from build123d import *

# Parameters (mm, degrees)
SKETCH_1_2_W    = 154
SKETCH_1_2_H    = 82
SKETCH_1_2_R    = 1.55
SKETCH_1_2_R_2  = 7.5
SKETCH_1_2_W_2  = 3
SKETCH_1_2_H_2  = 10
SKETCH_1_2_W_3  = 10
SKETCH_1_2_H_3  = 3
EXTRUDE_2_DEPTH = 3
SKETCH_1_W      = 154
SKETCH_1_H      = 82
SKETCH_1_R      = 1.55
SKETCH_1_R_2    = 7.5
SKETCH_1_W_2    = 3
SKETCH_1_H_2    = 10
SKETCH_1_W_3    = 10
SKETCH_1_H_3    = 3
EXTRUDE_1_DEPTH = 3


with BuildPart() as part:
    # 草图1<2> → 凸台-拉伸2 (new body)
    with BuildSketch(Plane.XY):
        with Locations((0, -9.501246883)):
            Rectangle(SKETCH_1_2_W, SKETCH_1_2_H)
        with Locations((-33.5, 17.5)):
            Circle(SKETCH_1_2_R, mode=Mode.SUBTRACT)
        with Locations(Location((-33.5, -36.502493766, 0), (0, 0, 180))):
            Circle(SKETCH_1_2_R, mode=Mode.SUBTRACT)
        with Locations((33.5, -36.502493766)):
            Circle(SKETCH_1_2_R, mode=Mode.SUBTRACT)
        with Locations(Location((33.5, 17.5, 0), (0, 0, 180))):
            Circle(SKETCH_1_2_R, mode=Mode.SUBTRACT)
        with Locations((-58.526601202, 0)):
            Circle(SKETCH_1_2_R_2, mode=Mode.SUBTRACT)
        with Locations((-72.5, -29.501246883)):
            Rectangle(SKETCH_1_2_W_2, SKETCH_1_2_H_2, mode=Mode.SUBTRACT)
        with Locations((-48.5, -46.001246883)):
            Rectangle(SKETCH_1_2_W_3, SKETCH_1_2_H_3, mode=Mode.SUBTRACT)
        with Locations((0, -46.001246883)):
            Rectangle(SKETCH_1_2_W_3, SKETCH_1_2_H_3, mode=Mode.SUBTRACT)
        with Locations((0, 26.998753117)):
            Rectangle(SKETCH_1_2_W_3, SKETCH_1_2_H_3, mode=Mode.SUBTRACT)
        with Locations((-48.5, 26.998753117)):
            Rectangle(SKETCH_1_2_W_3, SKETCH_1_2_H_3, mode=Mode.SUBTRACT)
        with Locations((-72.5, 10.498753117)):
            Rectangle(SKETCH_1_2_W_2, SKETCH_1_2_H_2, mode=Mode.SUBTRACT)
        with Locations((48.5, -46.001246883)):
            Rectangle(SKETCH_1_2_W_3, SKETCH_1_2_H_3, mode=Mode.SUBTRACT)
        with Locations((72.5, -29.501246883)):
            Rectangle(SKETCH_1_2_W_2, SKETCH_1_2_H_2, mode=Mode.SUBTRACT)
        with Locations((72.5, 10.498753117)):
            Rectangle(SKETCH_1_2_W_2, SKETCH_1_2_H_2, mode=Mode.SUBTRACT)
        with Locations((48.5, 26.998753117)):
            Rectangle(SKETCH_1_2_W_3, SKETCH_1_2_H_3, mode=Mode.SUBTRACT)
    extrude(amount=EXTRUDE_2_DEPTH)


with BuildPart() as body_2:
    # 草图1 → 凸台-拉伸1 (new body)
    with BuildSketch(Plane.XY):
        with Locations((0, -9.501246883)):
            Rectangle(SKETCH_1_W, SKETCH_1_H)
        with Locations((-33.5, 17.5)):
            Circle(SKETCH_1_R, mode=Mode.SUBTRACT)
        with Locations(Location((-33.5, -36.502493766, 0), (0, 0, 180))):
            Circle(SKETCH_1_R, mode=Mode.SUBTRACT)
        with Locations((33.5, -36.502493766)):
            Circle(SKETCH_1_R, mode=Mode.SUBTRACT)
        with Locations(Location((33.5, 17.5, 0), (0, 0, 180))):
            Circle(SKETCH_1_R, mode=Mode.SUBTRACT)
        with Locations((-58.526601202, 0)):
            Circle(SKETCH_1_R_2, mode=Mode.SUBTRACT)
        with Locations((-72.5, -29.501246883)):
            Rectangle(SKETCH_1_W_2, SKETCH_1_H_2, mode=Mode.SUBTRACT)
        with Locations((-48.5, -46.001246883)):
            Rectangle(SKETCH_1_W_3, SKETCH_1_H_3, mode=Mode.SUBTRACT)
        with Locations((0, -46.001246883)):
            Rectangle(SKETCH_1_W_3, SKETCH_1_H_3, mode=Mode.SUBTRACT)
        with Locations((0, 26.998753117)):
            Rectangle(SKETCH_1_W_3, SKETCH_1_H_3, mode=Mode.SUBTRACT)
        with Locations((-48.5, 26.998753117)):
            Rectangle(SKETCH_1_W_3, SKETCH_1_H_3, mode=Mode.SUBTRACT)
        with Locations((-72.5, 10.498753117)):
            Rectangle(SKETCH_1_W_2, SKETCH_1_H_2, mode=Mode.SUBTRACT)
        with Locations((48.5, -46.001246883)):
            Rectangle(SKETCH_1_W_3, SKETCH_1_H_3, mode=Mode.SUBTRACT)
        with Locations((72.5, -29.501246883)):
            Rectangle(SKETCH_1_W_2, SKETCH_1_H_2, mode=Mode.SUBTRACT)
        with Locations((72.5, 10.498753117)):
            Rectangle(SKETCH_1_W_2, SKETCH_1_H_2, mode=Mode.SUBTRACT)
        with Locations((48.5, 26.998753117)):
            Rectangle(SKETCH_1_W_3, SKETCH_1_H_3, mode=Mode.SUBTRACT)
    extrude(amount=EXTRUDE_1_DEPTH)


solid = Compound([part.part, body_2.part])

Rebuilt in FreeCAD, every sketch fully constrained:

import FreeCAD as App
import Part
import Sketcher
from FreeCAD import Vector
Q = App.Units.Quantity

doc = App.newDocument("Part")
body = doc.addObject("PartDesign::Body", "Body")

sketch1 = body.newObject("Sketcher::SketchObject", "Sketch")
sketch1.AttachmentSupport = (doc.getObject("XY_Plane"), [""])
sketch1.MapMode = "FlatFace"
sketch1.addGeometry([
    Part.LineSegment(Vector(-77, 31.498753, 0), Vector(-77, -50.501247, 0)),
    Part.LineSegment(Vector(-77, -50.501247, 0), Vector(77, -50.501247, 0)),
    Part.LineSegment(Vector(77, -50.501247, 0), Vector(77, 31.498753, 0)),
    Part.LineSegment(Vector(77, 31.498753, 0), Vector(-77, 31.498753, 0)),
    Part.LineSegment(Vector(-43.5, -47.501247, 0), Vector(-53.5, -47.501247, 0)),
    Part.LineSegment(Vector(-53.5, -47.501247, 0), Vector(-53.5, -44.501247, 0)),
    Part.LineSegment(Vector(-53.5, -44.501247, 0), Vector(-43.5, -44.501247, 0)),
    Part.LineSegment(Vector(-43.5, -44.501247, 0), Vector(-43.5, -47.501247, 0)),
    Part.LineSegment(Vector(-71, -34.501247, 0), Vector(-74, -34.501247, 0)),
    Part.LineSegment(Vector(-74, -34.501247, 0), Vector(-74, -24.501247, 0)),
    Part.LineSegment(Vector(-74, -24.501247, 0), Vector(-71, -24.501247, 0)),
    Part.LineSegment(Vector(-71, -24.501247, 0), Vector(-71, -34.501247, 0)),
    Part.Circle(Vector(-33.5, -36.502494, 0), Vector(0, 0, 1), 1.55),
    Part.LineSegment(Vector(5, -47.501247, 0), Vector(-5, -47.501247, 0)),
    Part.LineSegment(Vector(-5, -47.501247, 0), Vector(-5, -44.501247, 0)),
    Part.LineSegment(Vector(-5, -44.501247, 0), Vector(5, -44.501247, 0)),
    Part.LineSegment(Vector(5, -44.501247, 0), Vector(5, -47.501247, 0)),
    Part.Circle(Vector(33.5, -36.502494, 0), Vector(0, 0, 1), 1.55),
    Part.LineSegment(Vector(53.5, -47.501247, 0), Vector(43.5, -47.501247, 0)),
    Part.LineSegment(Vector(43.5, -47.501247, 0), Vector(43.5, -44.501247, 0)),
    Part.LineSegment(Vector(43.5, -44.501247, 0), Vector(53.5, -44.501247, 0)),
    Part.LineSegment(Vector(53.5, -44.501247, 0), Vector(53.5, -47.501247, 0)),
    Part.LineSegment(Vector(74, -34.501247, 0), Vector(71, -34.501247, 0)),
    Part.LineSegment(Vector(71, -34.501247, 0), Vector(71, -24.501247, 0)),
    Part.LineSegment(Vector(71, -24.501247, 0), Vector(74, -24.501247, 0)),
    Part.LineSegment(Vector(74, -24.501247, 0), Vector(74, -34.501247, 0)),
    Part.Circle(Vector(-58.526601, 0, 0), Vector(0, 0, 1), 7.5),
    Part.LineSegment(Vector(-71, 5.498753, 0), Vector(-74, 5.498753, 0)),
    Part.LineSegment(Vector(-74, 5.498753, 0), Vector(-74, 15.498753, 0)),
    Part.LineSegment(Vector(-74, 15.498753, 0), Vector(-71, 15.498753, 0)),
    Part.LineSegment(Vector(-71, 15.498753, 0), Vector(-71, 5.498753, 0)),
    Part.LineSegment(Vector(-43.5, 25.498753, 0), Vector(-53.5, 25.498753, 0)),
    Part.LineSegment(Vector(-53.5, 25.498753, 0), Vector(-53.5, 28.498753, 0)),
    Part.LineSegment(Vector(-53.5, 28.498753, 0), Vector(-43.5, 28.498753, 0)),
    Part.LineSegment(Vector(-43.5, 28.498753, 0), Vector(-43.5, 25.498753, 0)),
    Part.Circle(Vector(-33.5, 17.5, 0), Vector(0, 0, 1), 1.55),
    Part.Circle(Vector(33.5, 17.5, 0), Vector(0, 0, 1), 1.55),
    Part.LineSegment(Vector(5, 25.498753, 0), Vector(-5, 25.498753, 0)),
    Part.LineSegment(Vector(-5, 25.498753, 0), Vector(-5, 28.498753, 0)),
    Part.LineSegment(Vector(-5, 28.498753, 0), Vector(5, 28.498753, 0)),
    Part.LineSegment(Vector(5, 28.498753, 0), Vector(5, 25.498753, 0)),
    Part.LineSegment(Vector(74, 5.498753, 0), Vector(71, 5.498753, 0)),
    Part.LineSegment(Vector(71, 5.498753, 0), Vector(71, 15.498753, 0)),
    Part.LineSegment(Vector(71, 15.498753, 0), Vector(74, 15.498753, 0)),
    Part.LineSegment(Vector(74, 15.498753, 0), Vector(74, 5.498753, 0)),
    Part.LineSegment(Vector(53.5, 25.498753, 0), Vector(43.5, 25.498753, 0)),
    Part.LineSegment(Vector(43.5, 25.498753, 0), Vector(43.5, 28.498753, 0)),
    Part.LineSegment(Vector(43.5, 28.498753, 0), Vector(53.5, 28.498753, 0)),
    Part.LineSegment(Vector(53.5, 28.498753, 0), Vector(53.5, 25.498753, 0)),
], False)
sketch1.addConstraint([
    Sketcher.Constraint("Coincident", 0, 2, 1, 1),
    Sketcher.Constraint("Coincident", 1, 2, 2, 1),
    Sketcher.Constraint("Coincident", 2, 2, 3, 1),
    Sketcher.Constraint("Coincident", 3, 2, 0, 1),
    Sketcher.Constraint("Coincident", 4, 2, 5, 1),
    Sketcher.Constraint("Coincident", 5, 2, 6, 1),
    Sketcher.Constraint("Coincident", 6, 2, 7, 1),
    Sketcher.Constraint("Coincident", 7, 2, 4, 1),
    Sketcher.Constraint("Coincident", 8, 2, 9, 1),
    Sketcher.Constraint("Coincident", 9, 2, 10, 1),
    Sketcher.Constraint("Coincident", 10, 2, 11, 1),
    Sketcher.Constraint("Coincident", 11, 2, 8, 1),
    Sketcher.Constraint("Coincident", 13, 2, 14, 1),
    Sketcher.Constraint("Coincident", 14, 2, 15, 1),
    Sketcher.Constraint("Coincident", 15, 2, 16, 1),
    Sketcher.Constraint("Coincident", 16, 2, 13, 1),
    Sketcher.Constraint("Coincident", 18, 2, 19, 1),
    Sketcher.Constraint("Coincident", 19, 2, 20, 1),
    Sketcher.Constraint("Coincident", 20, 2, 21, 1),
    Sketcher.Constraint("Coincident", 21, 2, 18, 1),
    Sketcher.Constraint("Coincident", 22, 2, 23, 1),
    Sketcher.Constraint("Coincident", 23, 2, 24, 1),
    Sketcher.Constraint("Coincident", 24, 2, 25, 1),
    Sketcher.Constraint("Coincident", 25, 2, 22, 1),
    Sketcher.Constraint("Coincident", 27, 2, 28, 1),
    Sketcher.Constraint("Coincident", 28, 2, 29, 1),
    Sketcher.Constraint("Coincident", 29, 2, 30, 1),
    Sketcher.Constraint("Coincident", 30, 2, 27, 1),
    Sketcher.Constraint("Coincident", 31, 2, 32, 1),
    Sketcher.Constraint("Coincident", 32, 2, 33, 1),
    Sketcher.Constraint("Coincident", 33, 2, 34, 1),
    Sketcher.Constraint("Coincident", 34, 2, 31, 1),
    Sketcher.Constraint("Coincident", 37, 2, 38, 1),
    Sketcher.Constraint("Coincident", 38, 2, 39, 1),
    Sketcher.Constraint("Coincident", 39, 2, 40, 1),
    Sketcher.Constraint("Coincident", 40, 2, 37, 1),
    Sketcher.Constraint("Coincident", 41, 2, 42, 1),
    Sketcher.Constraint("Coincident", 42, 2, 43, 1),
    Sketcher.Constraint("Coincident", 43, 2, 44, 1),
    Sketcher.Constraint("Coincident", 44, 2, 41, 1),
    Sketcher.Constraint("Coincident", 45, 2, 46, 1),
    Sketcher.Constraint("Coincident", 46, 2, 47, 1),
    Sketcher.Constraint("Coincident", 47, 2, 48, 1),
    Sketcher.Constraint("Coincident", 48, 2, 45, 1),
    Sketcher.Constraint("Vertical", 0),
    Sketcher.Constraint("Horizontal", 1),
    Sketcher.Constraint("Vertical", 2),
    Sketcher.Constraint("Horizontal", 3),
    Sketcher.Constraint("Horizontal", 4),
    Sketcher.Constraint("Vertical", 5),
    Sketcher.Constraint("Horizontal", 6),
    Sketcher.Constraint("Vertical", 7),
    Sketcher.Constraint("Horizontal", 8),
    Sketcher.Constraint("Vertical", 9),
    Sketcher.Constraint("Horizontal", 10),
    Sketcher.Constraint("Vertical", 11),
    Sketcher.Constraint("Horizontal", 13),
    Sketcher.Constraint("Vertical", 14),
    Sketcher.Constraint("Horizontal", 15),
    Sketcher.Constraint("Vertical", 16),
    Sketcher.Constraint("Horizontal", 18),
    Sketcher.Constraint("Vertical", 19),
    Sketcher.Constraint("Horizontal", 20),
    Sketcher.Constraint("Vertical", 21),
    Sketcher.Constraint("Horizontal", 22),
    Sketcher.Constraint("Vertical", 23),
    Sketcher.Constraint("Horizontal", 24),
    Sketcher.Constraint("Vertical", 25),
    Sketcher.Constraint("Horizontal", 27),
    Sketcher.Constraint("Vertical", 28),
    Sketcher.Constraint("Horizontal", 29),
    Sketcher.Constraint("Vertical", 30),
    Sketcher.Constraint("Horizontal", 31),
    Sketcher.Constraint("Vertical", 32),
    Sketcher.Constraint("Horizontal", 33),
    Sketcher.Constraint("Vertical", 34),
    Sketcher.Constraint("Horizontal", 37),
    Sketcher.Constraint("Vertical", 38),
    Sketcher.Constraint("Horizontal", 39),
    Sketcher.Constraint("Vertical", 40),
    Sketcher.Constraint("Horizontal", 41),
    Sketcher.Constraint("Vertical", 42),
    Sketcher.Constraint("Horizontal", 43),
    Sketcher.Constraint("Vertical", 44),
    Sketcher.Constraint("Horizontal", 45),
    Sketcher.Constraint("Vertical", 46),
    Sketcher.Constraint("Horizontal", 47),
    Sketcher.Constraint("Vertical", 48),
    Sketcher.Constraint("Equal", 12, 17),
    Sketcher.Constraint("Equal", 17, 35),
    Sketcher.Constraint("Equal", 35, 36),
    Sketcher.Constraint("Symmetric", 12, 3, 17, 3, -2),
    Sketcher.Constraint("Symmetric", 35, 3, 36, 3, -2),
    Sketcher.Constraint("Symmetric", 7, 2, 18, 2, -2),
    Sketcher.Constraint("Symmetric", 5, 2, 20, 2, -2),
    Sketcher.Constraint("Symmetric", 11, 2, 22, 2, -2),
    Sketcher.Constraint("Symmetric", 9, 2, 24, 2, -2),
    Sketcher.Constraint("Symmetric", 30, 2, 41, 2, -2),
    Sketcher.Constraint("Symmetric", 28, 2, 43, 2, -2),
    Sketcher.Constraint("Symmetric", 34, 2, 45, 2, -2),
    Sketcher.Constraint("Symmetric", 32, 2, 47, 2, -2),
    Sketcher.Constraint("PointOnObject", 26, 3, -1),
    Sketcher.Constraint("Horizontal", 7, 2, 13, 2),
    Sketcher.Constraint("Horizontal", 6, 2, 14, 2),
    Sketcher.Constraint("Horizontal", 34, 2, 37, 2),
    Sketcher.Constraint("Horizontal", 33, 2, 38, 2),
    Sketcher.Constraint("Vertical", 12, 3, 35, 3),
    Sketcher.Constraint("Vertical", 9, 2, 27, 2),
    Sketcher.Constraint("Vertical", 11, 2, 29, 2),
    Sketcher.Constraint("Vertical", 5, 2, 31, 2),
    Sketcher.Constraint("Vertical", 7, 2, 33, 2),
    Sketcher.Constraint("Vertical", 14, 2, 37, 2),
    Sketcher.Constraint("Vertical", 16, 2, 39, 2),
    Sketcher.Constraint("Equal", 6, 13),
    Sketcher.Constraint("Equal", 43, 5),
    Sketcher.Constraint("Equal", 47, 9),
    Sketcher.Constraint("Equal", 25, 28),
    Sketcher.Constraint("Equal", 21, 32),
    Sketcher.Constraint("Diameter", 26, Q("15 mm")),
    Sketcher.Constraint("Diameter", 12, Q("3.1 mm")),
    Sketcher.Constraint("DistanceX", 1, 1, 1, 2, Q("154 mm")),
    Sketcher.Constraint("DistanceX", 4, 2, 4, 1, Q("10 mm")),
    Sketcher.Constraint("DistanceX", 8, 2, 8, 1, Q("3 mm")),
    Sketcher.Constraint("DistanceY", 0, 2, 0, 1, Q("82 mm")),
    Sketcher.Constraint("DistanceX", 0, 2, -1, 1, Q("77 mm")),
    Sketcher.Constraint("DistanceX", 8, 2, -1, 1, Q("74 mm")),
    Sketcher.Constraint("DistanceX", 13, 2, -1, 1, Q("5 mm")),
    Sketcher.Constraint("DistanceX", 12, 3, 17, 3, Q("67 mm")),
    Sketcher.Constraint("DistanceX", 4, 2, 12, 3, Q("20 mm")),
    Sketcher.Constraint("DistanceY", 0, 2, 4, 2, Q("3 mm")),
    Sketcher.Constraint("DistanceY", 0, 2, 8, 2, Q("16 mm")),
    Sketcher.Constraint("DistanceY", 27, 2, 3, 2, Q("26 mm")),
    Sketcher.Constraint("DistanceY", 29, 2, 31, 2, Q("10 mm")),
    Sketcher.Constraint("DistanceY", -1, 1, 35, 3, Q("17.5 mm")),
    Sketcher.Constraint("DistanceX", 26, 3, -1, 1, Q("58.526601 mm")),
    Sketcher.Constraint("DistanceY", 12, 3, -1, 1, Q("36.502494 mm")),
    Sketcher.Constraint("DistanceY", 0, 2, -1, 1, Q("50.501247 mm")),
])
pad1 = body.newObject("PartDesign::Pad", "Pad")
pad1.Profile = sketch1
pad1.Length = 3
body2 = doc.addObject("PartDesign::Body", "Body001")

sketch2 = body2.newObject("Sketcher::SketchObject", "Sketch001")
sketch2.AttachmentSupport = (doc.getObject("XY_Plane001"), [""])
sketch2.MapMode = "FlatFace"
sketch2.addGeometry([
    Part.LineSegment(Vector(-77, 31.498753, 0), Vector(-77, -50.501247, 0)),
    Part.LineSegment(Vector(-77, -50.501247, 0), Vector(77, -50.501247, 0)),
    Part.LineSegment(Vector(77, -50.501247, 0), Vector(77, 31.498753, 0)),
    Part.LineSegment(Vector(77, 31.498753, 0), Vector(-77, 31.498753, 0)),
    Part.LineSegment(Vector(-43.5, -47.501247, 0), Vector(-53.5, -47.501247, 0)),
    Part.LineSegment(Vector(-53.5, -47.501247, 0), Vector(-53.5, -44.501247, 0)),
    Part.LineSegment(Vector(-53.5, -44.501247, 0), Vector(-43.5, -44.501247, 0)),
    Part.LineSegment(Vector(-43.5, -44.501247, 0), Vector(-43.5, -47.501247, 0)),
    Part.LineSegment(Vector(-71, -34.501247, 0), Vector(-74, -34.501247, 0)),
    Part.LineSegment(Vector(-74, -34.501247, 0), Vector(-74, -24.501247, 0)),
    Part.LineSegment(Vector(-74, -24.501247, 0), Vector(-71, -24.501247, 0)),
    Part.LineSegment(Vector(-71, -24.501247, 0), Vector(-71, -34.501247, 0)),
    Part.Circle(Vector(-33.5, -36.502494, 0), Vector(0, 0, 1), 1.55),
    Part.LineSegment(Vector(5, -47.501247, 0), Vector(-5, -47.501247, 0)),
    Part.LineSegment(Vector(-5, -47.501247, 0), Vector(-5, -44.501247, 0)),
    Part.LineSegment(Vector(-5, -44.501247, 0), Vector(5, -44.501247, 0)),
    Part.LineSegment(Vector(5, -44.501247, 0), Vector(5, -47.501247, 0)),
    Part.Circle(Vector(33.5, -36.502494, 0), Vector(0, 0, 1), 1.55),
    Part.LineSegment(Vector(53.5, -47.501247, 0), Vector(43.5, -47.501247, 0)),
    Part.LineSegment(Vector(43.5, -47.501247, 0), Vector(43.5, -44.501247, 0)),
    Part.LineSegment(Vector(43.5, -44.501247, 0), Vector(53.5, -44.501247, 0)),
    Part.LineSegment(Vector(53.5, -44.501247, 0), Vector(53.5, -47.501247, 0)),
    Part.LineSegment(Vector(74, -34.501247, 0), Vector(71, -34.501247, 0)),
    Part.LineSegment(Vector(71, -34.501247, 0), Vector(71, -24.501247, 0)),
    Part.LineSegment(Vector(71, -24.501247, 0), Vector(74, -24.501247, 0)),
    Part.LineSegment(Vector(74, -24.501247, 0), Vector(74, -34.501247, 0)),
    Part.Circle(Vector(-58.526601, 0, 0), Vector(0, 0, 1), 7.5),
    Part.LineSegment(Vector(-71, 5.498753, 0), Vector(-74, 5.498753, 0)),
    Part.LineSegment(Vector(-74, 5.498753, 0), Vector(-74, 15.498753, 0)),
    Part.LineSegment(Vector(-74, 15.498753, 0), Vector(-71, 15.498753, 0)),
    Part.LineSegment(Vector(-71, 15.498753, 0), Vector(-71, 5.498753, 0)),
    Part.LineSegment(Vector(-43.5, 25.498753, 0), Vector(-53.5, 25.498753, 0)),
    Part.LineSegment(Vector(-53.5, 25.498753, 0), Vector(-53.5, 28.498753, 0)),
    Part.LineSegment(Vector(-53.5, 28.498753, 0), Vector(-43.5, 28.498753, 0)),
    Part.LineSegment(Vector(-43.5, 28.498753, 0), Vector(-43.5, 25.498753, 0)),
    Part.Circle(Vector(-33.5, 17.5, 0), Vector(0, 0, 1), 1.55),
    Part.Circle(Vector(33.5, 17.5, 0), Vector(0, 0, 1), 1.55),
    Part.LineSegment(Vector(5, 25.498753, 0), Vector(-5, 25.498753, 0)),
    Part.LineSegment(Vector(-5, 25.498753, 0), Vector(-5, 28.498753, 0)),
    Part.LineSegment(Vector(-5, 28.498753, 0), Vector(5, 28.498753, 0)),
    Part.LineSegment(Vector(5, 28.498753, 0), Vector(5, 25.498753, 0)),
    Part.LineSegment(Vector(74, 5.498753, 0), Vector(71, 5.498753, 0)),
    Part.LineSegment(Vector(71, 5.498753, 0), Vector(71, 15.498753, 0)),
    Part.LineSegment(Vector(71, 15.498753, 0), Vector(74, 15.498753, 0)),
    Part.LineSegment(Vector(74, 15.498753, 0), Vector(74, 5.498753, 0)),
    Part.LineSegment(Vector(53.5, 25.498753, 0), Vector(43.5, 25.498753, 0)),
    Part.LineSegment(Vector(43.5, 25.498753, 0), Vector(43.5, 28.498753, 0)),
    Part.LineSegment(Vector(43.5, 28.498753, 0), Vector(53.5, 28.498753, 0)),
    Part.LineSegment(Vector(53.5, 28.498753, 0), Vector(53.5, 25.498753, 0)),
], False)
sketch2.addConstraint([
    Sketcher.Constraint("Coincident", 0, 2, 1, 1),
    Sketcher.Constraint("Coincident", 1, 2, 2, 1),
    Sketcher.Constraint("Coincident", 2, 2, 3, 1),
    Sketcher.Constraint("Coincident", 3, 2, 0, 1),
    Sketcher.Constraint("Coincident", 4, 2, 5, 1),
    Sketcher.Constraint("Coincident", 5, 2, 6, 1),
    Sketcher.Constraint("Coincident", 6, 2, 7, 1),
    Sketcher.Constraint("Coincident", 7, 2, 4, 1),
    Sketcher.Constraint("Coincident", 8, 2, 9, 1),
    Sketcher.Constraint("Coincident", 9, 2, 10, 1),
    Sketcher.Constraint("Coincident", 10, 2, 11, 1),
    Sketcher.Constraint("Coincident", 11, 2, 8, 1),
    Sketcher.Constraint("Coincident", 13, 2, 14, 1),
    Sketcher.Constraint("Coincident", 14, 2, 15, 1),
    Sketcher.Constraint("Coincident", 15, 2, 16, 1),
    Sketcher.Constraint("Coincident", 16, 2, 13, 1),
    Sketcher.Constraint("Coincident", 18, 2, 19, 1),
    Sketcher.Constraint("Coincident", 19, 2, 20, 1),
    Sketcher.Constraint("Coincident", 20, 2, 21, 1),
    Sketcher.Constraint("Coincident", 21, 2, 18, 1),
    Sketcher.Constraint("Coincident", 22, 2, 23, 1),
    Sketcher.Constraint("Coincident", 23, 2, 24, 1),
    Sketcher.Constraint("Coincident", 24, 2, 25, 1),
    Sketcher.Constraint("Coincident", 25, 2, 22, 1),
    Sketcher.Constraint("Coincident", 27, 2, 28, 1),
    Sketcher.Constraint("Coincident", 28, 2, 29, 1),
    Sketcher.Constraint("Coincident", 29, 2, 30, 1),
    Sketcher.Constraint("Coincident", 30, 2, 27, 1),
    Sketcher.Constraint("Coincident", 31, 2, 32, 1),
    Sketcher.Constraint("Coincident", 32, 2, 33, 1),
    Sketcher.Constraint("Coincident", 33, 2, 34, 1),
    Sketcher.Constraint("Coincident", 34, 2, 31, 1),
    Sketcher.Constraint("Coincident", 37, 2, 38, 1),
    Sketcher.Constraint("Coincident", 38, 2, 39, 1),
    Sketcher.Constraint("Coincident", 39, 2, 40, 1),
    Sketcher.Constraint("Coincident", 40, 2, 37, 1),
    Sketcher.Constraint("Coincident", 41, 2, 42, 1),
    Sketcher.Constraint("Coincident", 42, 2, 43, 1),
    Sketcher.Constraint("Coincident", 43, 2, 44, 1),
    Sketcher.Constraint("Coincident", 44, 2, 41, 1),
    Sketcher.Constraint("Coincident", 45, 2, 46, 1),
    Sketcher.Constraint("Coincident", 46, 2, 47, 1),
    Sketcher.Constraint("Coincident", 47, 2, 48, 1),
    Sketcher.Constraint("Coincident", 48, 2, 45, 1),
    Sketcher.Constraint("Vertical", 0),
    Sketcher.Constraint("Horizontal", 1),
    Sketcher.Constraint("Vertical", 2),
    Sketcher.Constraint("Horizontal", 3),
    Sketcher.Constraint("Horizontal", 4),
    Sketcher.Constraint("Vertical", 5),
    Sketcher.Constraint("Horizontal", 6),
    Sketcher.Constraint("Vertical", 7),
    Sketcher.Constraint("Horizontal", 8),
    Sketcher.Constraint("Vertical", 9),
    Sketcher.Constraint("Horizontal", 10),
    Sketcher.Constraint("Vertical", 11),
    Sketcher.Constraint("Horizontal", 13),
    Sketcher.Constraint("Vertical", 14),
    Sketcher.Constraint("Horizontal", 15),
    Sketcher.Constraint("Vertical", 16),
    Sketcher.Constraint("Horizontal", 18),
    Sketcher.Constraint("Vertical", 19),
    Sketcher.Constraint("Horizontal", 20),
    Sketcher.Constraint("Vertical", 21),
    Sketcher.Constraint("Horizontal", 22),
    Sketcher.Constraint("Vertical", 23),
    Sketcher.Constraint("Horizontal", 24),
    Sketcher.Constraint("Vertical", 25),
    Sketcher.Constraint("Horizontal", 27),
    Sketcher.Constraint("Vertical", 28),
    Sketcher.Constraint("Horizontal", 29),
    Sketcher.Constraint("Vertical", 30),
    Sketcher.Constraint("Horizontal", 31),
    Sketcher.Constraint("Vertical", 32),
    Sketcher.Constraint("Horizontal", 33),
    Sketcher.Constraint("Vertical", 34),
    Sketcher.Constraint("Horizontal", 37),
    Sketcher.Constraint("Vertical", 38),
    Sketcher.Constraint("Horizontal", 39),
    Sketcher.Constraint("Vertical", 40),
    Sketcher.Constraint("Horizontal", 41),
    Sketcher.Constraint("Vertical", 42),
    Sketcher.Constraint("Horizontal", 43),
    Sketcher.Constraint("Vertical", 44),
    Sketcher.Constraint("Horizontal", 45),
    Sketcher.Constraint("Vertical", 46),
    Sketcher.Constraint("Horizontal", 47),
    Sketcher.Constraint("Vertical", 48),
    Sketcher.Constraint("Equal", 12, 17),
    Sketcher.Constraint("Equal", 17, 35),
    Sketcher.Constraint("Equal", 35, 36),
    Sketcher.Constraint("Symmetric", 12, 3, 17, 3, -2),
    Sketcher.Constraint("Symmetric", 35, 3, 36, 3, -2),
    Sketcher.Constraint("Symmetric", 7, 2, 18, 2, -2),
    Sketcher.Constraint("Symmetric", 5, 2, 20, 2, -2),
    Sketcher.Constraint("Symmetric", 11, 2, 22, 2, -2),
    Sketcher.Constraint("Symmetric", 9, 2, 24, 2, -2),
    Sketcher.Constraint("Symmetric", 30, 2, 41, 2, -2),
    Sketcher.Constraint("Symmetric", 28, 2, 43, 2, -2),
    Sketcher.Constraint("Symmetric", 34, 2, 45, 2, -2),
    Sketcher.Constraint("Symmetric", 32, 2, 47, 2, -2),
    Sketcher.Constraint("PointOnObject", 26, 3, -1),
    Sketcher.Constraint("Horizontal", 7, 2, 13, 2),
    Sketcher.Constraint("Horizontal", 6, 2, 14, 2),
    Sketcher.Constraint("Horizontal", 34, 2, 37, 2),
    Sketcher.Constraint("Horizontal", 33, 2, 38, 2),
    Sketcher.Constraint("Vertical", 12, 3, 35, 3),
    Sketcher.Constraint("Vertical", 9, 2, 27, 2),
    Sketcher.Constraint("Vertical", 11, 2, 29, 2),
    Sketcher.Constraint("Vertical", 5, 2, 31, 2),
    Sketcher.Constraint("Vertical", 7, 2, 33, 2),
    Sketcher.Constraint("Vertical", 14, 2, 37, 2),
    Sketcher.Constraint("Vertical", 16, 2, 39, 2),
    Sketcher.Constraint("Equal", 6, 13),
    Sketcher.Constraint("Equal", 43, 5),
    Sketcher.Constraint("Equal", 47, 9),
    Sketcher.Constraint("Equal", 25, 28),
    Sketcher.Constraint("Equal", 21, 32),
    Sketcher.Constraint("Diameter", 26, Q("15 mm")),
    Sketcher.Constraint("Diameter", 12, Q("3.1 mm")),
    Sketcher.Constraint("DistanceX", 1, 1, 1, 2, Q("154 mm")),
    Sketcher.Constraint("DistanceX", 4, 2, 4, 1, Q("10 mm")),
    Sketcher.Constraint("DistanceX", 8, 2, 8, 1, Q("3 mm")),
    Sketcher.Constraint("DistanceY", 0, 2, 0, 1, Q("82 mm")),
    Sketcher.Constraint("DistanceX", 0, 2, -1, 1, Q("77 mm")),
    Sketcher.Constraint("DistanceX", 8, 2, -1, 1, Q("74 mm")),
    Sketcher.Constraint("DistanceX", 13, 2, -1, 1, Q("5 mm")),
    Sketcher.Constraint("DistanceX", 12, 3, 17, 3, Q("67 mm")),
    Sketcher.Constraint("DistanceX", 4, 2, 12, 3, Q("20 mm")),
    Sketcher.Constraint("DistanceY", 0, 2, 4, 2, Q("3 mm")),
    Sketcher.Constraint("DistanceY", 0, 2, 8, 2, Q("16 mm")),
    Sketcher.Constraint("DistanceY", 27, 2, 3, 2, Q("26 mm")),
    Sketcher.Constraint("DistanceY", 29, 2, 31, 2, Q("10 mm")),
    Sketcher.Constraint("DistanceY", -1, 1, 35, 3, Q("17.5 mm")),
    Sketcher.Constraint("DistanceX", 26, 3, -1, 1, Q("58.526601 mm")),
    Sketcher.Constraint("DistanceY", 12, 3, -1, 1, Q("36.502494 mm")),
    Sketcher.Constraint("DistanceY", 0, 2, -1, 1, Q("50.501247 mm")),
])
pad2 = body2.newObject("PartDesign::Pad", "Pad001")
pad2.Profile = sketch2
pad2.Length = 3

doc.recompute()
